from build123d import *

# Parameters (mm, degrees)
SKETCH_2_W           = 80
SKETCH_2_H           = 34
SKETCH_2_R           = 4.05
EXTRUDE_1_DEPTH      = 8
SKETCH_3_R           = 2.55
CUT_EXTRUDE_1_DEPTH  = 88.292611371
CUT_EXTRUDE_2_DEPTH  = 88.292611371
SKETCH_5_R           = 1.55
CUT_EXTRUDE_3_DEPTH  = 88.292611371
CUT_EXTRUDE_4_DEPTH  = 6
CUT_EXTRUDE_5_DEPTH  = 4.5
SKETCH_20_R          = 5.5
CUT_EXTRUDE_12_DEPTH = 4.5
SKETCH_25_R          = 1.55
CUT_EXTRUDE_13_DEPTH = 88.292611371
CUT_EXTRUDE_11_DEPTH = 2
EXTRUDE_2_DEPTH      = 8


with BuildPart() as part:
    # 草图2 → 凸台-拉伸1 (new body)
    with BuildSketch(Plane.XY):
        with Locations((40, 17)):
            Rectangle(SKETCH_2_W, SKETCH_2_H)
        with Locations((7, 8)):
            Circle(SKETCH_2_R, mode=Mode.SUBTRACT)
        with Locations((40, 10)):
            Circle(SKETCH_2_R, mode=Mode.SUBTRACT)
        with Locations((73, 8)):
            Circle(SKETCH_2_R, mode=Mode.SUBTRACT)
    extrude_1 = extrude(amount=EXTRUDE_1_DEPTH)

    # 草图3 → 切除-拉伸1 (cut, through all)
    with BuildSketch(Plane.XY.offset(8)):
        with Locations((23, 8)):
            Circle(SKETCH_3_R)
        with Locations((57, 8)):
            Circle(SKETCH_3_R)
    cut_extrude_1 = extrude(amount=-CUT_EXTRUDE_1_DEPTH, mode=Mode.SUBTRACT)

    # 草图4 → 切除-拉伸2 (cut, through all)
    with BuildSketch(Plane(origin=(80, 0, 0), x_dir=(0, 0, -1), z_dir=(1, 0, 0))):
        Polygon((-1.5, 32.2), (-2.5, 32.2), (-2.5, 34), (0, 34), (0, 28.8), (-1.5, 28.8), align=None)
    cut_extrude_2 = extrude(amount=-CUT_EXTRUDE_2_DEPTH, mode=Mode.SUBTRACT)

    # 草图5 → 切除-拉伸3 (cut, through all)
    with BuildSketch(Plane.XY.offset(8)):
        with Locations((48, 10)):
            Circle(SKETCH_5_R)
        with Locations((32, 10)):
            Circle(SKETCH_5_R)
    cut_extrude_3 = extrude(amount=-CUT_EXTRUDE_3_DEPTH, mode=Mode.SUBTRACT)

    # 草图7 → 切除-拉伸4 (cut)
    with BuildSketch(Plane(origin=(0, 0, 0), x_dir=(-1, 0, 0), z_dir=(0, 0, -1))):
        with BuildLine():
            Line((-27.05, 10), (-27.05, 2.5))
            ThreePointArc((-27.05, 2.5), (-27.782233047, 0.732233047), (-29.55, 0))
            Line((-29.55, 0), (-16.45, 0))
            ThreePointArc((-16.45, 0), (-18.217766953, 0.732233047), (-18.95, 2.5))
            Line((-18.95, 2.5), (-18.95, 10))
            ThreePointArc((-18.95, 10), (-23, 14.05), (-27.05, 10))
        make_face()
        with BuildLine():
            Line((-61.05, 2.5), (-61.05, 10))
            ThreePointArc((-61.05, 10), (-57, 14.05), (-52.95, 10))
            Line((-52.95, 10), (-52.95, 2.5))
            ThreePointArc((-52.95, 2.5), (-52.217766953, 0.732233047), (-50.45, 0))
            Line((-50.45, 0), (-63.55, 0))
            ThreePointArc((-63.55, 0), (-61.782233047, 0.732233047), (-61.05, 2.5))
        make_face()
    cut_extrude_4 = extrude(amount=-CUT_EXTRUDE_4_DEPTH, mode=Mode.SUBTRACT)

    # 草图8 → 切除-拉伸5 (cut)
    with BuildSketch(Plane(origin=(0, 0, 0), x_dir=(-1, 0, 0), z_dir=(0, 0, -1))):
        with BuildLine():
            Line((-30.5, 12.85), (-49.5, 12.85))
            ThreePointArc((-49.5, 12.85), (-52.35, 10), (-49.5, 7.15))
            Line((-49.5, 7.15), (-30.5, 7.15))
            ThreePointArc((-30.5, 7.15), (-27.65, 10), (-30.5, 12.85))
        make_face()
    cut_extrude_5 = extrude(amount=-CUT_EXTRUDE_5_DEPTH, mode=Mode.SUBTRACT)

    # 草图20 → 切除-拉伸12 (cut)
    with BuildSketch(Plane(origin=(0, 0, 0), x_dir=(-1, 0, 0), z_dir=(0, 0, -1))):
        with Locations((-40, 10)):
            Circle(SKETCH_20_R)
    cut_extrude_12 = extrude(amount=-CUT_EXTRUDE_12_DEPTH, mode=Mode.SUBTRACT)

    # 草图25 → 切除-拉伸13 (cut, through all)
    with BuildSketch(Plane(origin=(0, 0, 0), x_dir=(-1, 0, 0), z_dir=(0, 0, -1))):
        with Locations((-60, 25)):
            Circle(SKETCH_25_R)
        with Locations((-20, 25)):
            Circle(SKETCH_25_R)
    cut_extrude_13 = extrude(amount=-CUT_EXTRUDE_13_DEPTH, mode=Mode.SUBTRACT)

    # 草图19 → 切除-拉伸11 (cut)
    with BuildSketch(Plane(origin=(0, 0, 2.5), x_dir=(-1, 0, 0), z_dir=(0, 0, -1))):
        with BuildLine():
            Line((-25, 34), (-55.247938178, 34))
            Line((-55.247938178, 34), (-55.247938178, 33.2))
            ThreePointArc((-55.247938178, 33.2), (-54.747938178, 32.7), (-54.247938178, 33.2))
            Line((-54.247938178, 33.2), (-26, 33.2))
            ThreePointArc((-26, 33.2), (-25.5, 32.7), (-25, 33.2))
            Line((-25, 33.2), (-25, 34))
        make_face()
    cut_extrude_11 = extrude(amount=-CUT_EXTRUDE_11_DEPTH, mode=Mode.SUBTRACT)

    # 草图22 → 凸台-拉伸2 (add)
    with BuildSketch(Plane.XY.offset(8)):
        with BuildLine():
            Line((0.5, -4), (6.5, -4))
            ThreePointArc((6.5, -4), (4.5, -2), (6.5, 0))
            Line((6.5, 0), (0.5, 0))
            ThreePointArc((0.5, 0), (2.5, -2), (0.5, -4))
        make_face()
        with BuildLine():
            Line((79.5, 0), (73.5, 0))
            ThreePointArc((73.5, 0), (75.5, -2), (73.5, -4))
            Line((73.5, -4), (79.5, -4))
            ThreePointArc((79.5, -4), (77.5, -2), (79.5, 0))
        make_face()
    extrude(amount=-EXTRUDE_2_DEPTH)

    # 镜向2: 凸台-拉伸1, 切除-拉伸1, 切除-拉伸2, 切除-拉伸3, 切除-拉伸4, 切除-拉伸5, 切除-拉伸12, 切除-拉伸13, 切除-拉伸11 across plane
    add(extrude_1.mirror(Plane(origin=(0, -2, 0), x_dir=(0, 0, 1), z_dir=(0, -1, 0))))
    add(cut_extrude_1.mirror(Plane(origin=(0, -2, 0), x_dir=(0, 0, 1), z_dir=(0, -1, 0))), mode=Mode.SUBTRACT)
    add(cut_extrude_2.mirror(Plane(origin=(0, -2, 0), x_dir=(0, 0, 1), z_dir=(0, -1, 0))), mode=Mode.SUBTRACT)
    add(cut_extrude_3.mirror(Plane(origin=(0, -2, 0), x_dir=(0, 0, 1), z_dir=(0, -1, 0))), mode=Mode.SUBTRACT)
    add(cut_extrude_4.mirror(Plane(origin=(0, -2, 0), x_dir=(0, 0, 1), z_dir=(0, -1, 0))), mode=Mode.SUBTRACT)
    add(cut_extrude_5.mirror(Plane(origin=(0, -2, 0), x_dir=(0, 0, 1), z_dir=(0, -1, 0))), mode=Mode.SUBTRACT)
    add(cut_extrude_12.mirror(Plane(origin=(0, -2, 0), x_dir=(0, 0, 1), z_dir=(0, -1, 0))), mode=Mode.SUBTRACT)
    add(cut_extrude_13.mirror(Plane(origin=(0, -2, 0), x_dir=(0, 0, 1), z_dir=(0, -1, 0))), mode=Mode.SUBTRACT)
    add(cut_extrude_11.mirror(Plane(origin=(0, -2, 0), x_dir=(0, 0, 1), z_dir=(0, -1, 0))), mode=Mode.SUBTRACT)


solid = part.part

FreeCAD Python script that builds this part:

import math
import FreeCAD as App
import Part
import Sketcher
from FreeCAD import Vector
Q = App.Units.Quantity


def add_polygon(sketch, points):
    """Adds a closed chain of lines whose ends are joined by coincident constraints."""
    first, n = sketch.GeometryCount, len(points)
    for a, b in zip(points, points[1:] + points[:1]):
        sketch.addGeometry(Part.LineSegment(App.Vector(*a, 0), App.Vector(*b, 0)), False)
    for i in range(n):
        sketch.addConstraint(Sketcher.Constraint("Coincident", first + i, 2, first + (i + 1) % n, 1))

doc = App.newDocument("Part")
body = doc.addObject("PartDesign::Body", "Body")

# Sketch on XY plane
sketch1 = body.newObject("Sketcher::SketchObject", "Sketch")
sketch1.AttachmentSupport = (doc.getObject("XY_Plane"), [""])
sketch1.MapMode = "FlatFace"
add_polygon(sketch1, [(0, 34), (0, 0), (80, 0), (80, 34)])  # lines 0-3
sketch1.addGeometry(Part.Circle(Vector(7, 8, 0), Vector(0, 0, 1), 4.05), False)  # 4
sketch1.addGeometry(Part.Circle(Vector(73, 8, 0), Vector(0, 0, 1), 4.05), False)  # 5
sketch1.addGeometry(Part.Circle(Vector(40, 10, 0), Vector(0, 0, 1), 4.05), False)  # 6
sketch1.addConstraint(Sketcher.Constraint("Vertical", 0))
sketch1.addConstraint(Sketcher.Constraint("Horizontal", 1))
sketch1.addConstraint(Sketcher.Constraint("Vertical", 2))
sketch1.addConstraint(Sketcher.Constraint("Horizontal", 3))
sketch1.addConstraint(Sketcher.Constraint("Coincident", 0, 2, -1, 1))
sketch1.addConstraint(Sketcher.Constraint("Equal", 4, 5))
sketch1.addConstraint(Sketcher.Constraint("Equal", 5, 6))
sketch1.addConstraint(Sketcher.Constraint("Horizontal", 4, 3, 5, 3))
sketch1.addConstraint(Sketcher.Constraint("Diameter", 4, Q("8.1 mm")))
sketch1.addConstraint(Sketcher.Constraint("DistanceX", 1, 1, 1, 2, Q("80 mm")))
sketch1.addConstraint(Sketcher.Constraint("DistanceY", 0, 2, 0, 1, Q("34 mm")))
sketch1.addConstraint(Sketcher.Constraint("DistanceX", -1, 1, 4, 3, Q("7 mm")))
sketch1.addConstraint(Sketcher.Constraint("DistanceY", -1, 1, 4, 3, Q("8 mm")))
sketch1.addConstraint(Sketcher.Constraint("DistanceX", -1, 1, 5, 3, Q("73 mm")))
sketch1.addConstraint(Sketcher.Constraint("DistanceX", -1, 1, 6, 3, Q("40 mm")))
sketch1.addConstraint(Sketcher.Constraint("DistanceY", -1, 1, 6, 3, Q("10 mm")))
pad1 = body.newObject("PartDesign::Pad", "Pad")
pad1.Profile = sketch1
pad1.Length = 8

# Sketch on XY plane
sketch2 = body.newObject("Sketcher::SketchObject", "Sketch001")
sketch2.AttachmentSupport = (doc.getObject("XY_Plane"), [""])
sketch2.MapMode = "FlatFace"
sketch2.AttachmentOffset = App.Placement(Vector(0, 0, 8), App.Rotation())
sketch2.addGeometry(Part.Circle(Vector(23, 8, 0), Vector(0, 0, 1), 2.55), False)
sketch2.addGeometry(Part.Circle(Vector(57, 8, 0), Vector(0, 0, 1), 2.55), False)
sketch2.addConstraint(Sketcher.Constraint("Equal", 0, 1))
sketch2.addConstraint(Sketcher.Constraint("Horizontal", 0, 3, 1, 3))
sketch2.addConstraint(Sketcher.Constraint("Diameter", 0, Q("5.1 mm")))
sketch2.addConstraint(Sketcher.Constraint("DistanceX", -1, 1, 0, 3, Q("23 mm")))
sketch2.addConstraint(Sketcher.Constraint("DistanceY", -1, 1, 0, 3, Q("8 mm")))
sketch2.addConstraint(Sketcher.Constraint("DistanceX", -1, 1, 1, 3, Q("57 mm")))
pocket1 = body.newObject("PartDesign::Pocket", "Pocket")
pocket1.Profile = sketch2
pocket1.Type = "ThroughAll"

# Sketch on YZ plane
sketch3 = body.newObject("Sketcher::SketchObject", "Sketch002")
sketch3.AttachmentSupport = (doc.getObject("YZ_Plane"), [""])
sketch3.MapMode = "FlatFace"
sketch3.AttachmentOffset = App.Placement(Vector(0, 0, 80), App.Rotation())
add_polygon(sketch3, [(32.2, 2.5), (32.2, 1.5), (28.8, 1.5), (28.8, 0), (34, 0), (34, 2.5)])  # lines 0-5
sketch3.addConstraint(Sketcher.Constraint("Vertical", 0))
sketch3.addConstraint(Sketcher.Constraint("Horizontal", 1))
sketch3.addConstraint(Sketcher.Constraint("Vertical", 2))
sketch3.addConstraint(Sketcher.Constraint("Horizontal", 3))
sketch3.addConstraint(Sketcher.Constraint("Vertical", 4))
sketch3.addConstraint(Sketcher.Constraint("Horizontal", 5))
sketch3.addConstraint(Sketcher.Constraint("PointOnObject", 2, 2, -1))
sketch3.addConstraint(Sketcher.Constraint("DistanceY", 0, 2, 0, 1, Q("1 mm")))
sketch3.addConstraint(Sketcher.Constraint("DistanceX", 1, 2, 1, 1, Q("3.4 mm")))
sketch3.addConstraint(Sketcher.Constraint("DistanceX", 3, 1, 3, 2, Q("5.2 mm")))
sketch3.addConstraint(Sketcher.Constraint("DistanceY", 2, 2, 2, 1, Q("1.5 mm")))
sketch3.addConstraint(Sketcher.Constraint("DistanceX", -1, 1, 3, 2, Q("34 mm")))
pocket2 = body.newObject("PartDesign::Pocket", "Pocket001")
pocket2.Profile = sketch3
pocket2.Type = "ThroughAll"

# Sketch on XY plane
sketch4 = body.newObject("Sketcher::SketchObject", "Sketch003")
sketch4.AttachmentSupport = (doc.getObject("XY_Plane"), [""])
sketch4.MapMode = "FlatFace"
sketch4.AttachmentOffset = App.Placement(Vector(0, 0, 8), App.Rotation())
sketch4.addGeometry(Part.Circle(Vector(48, 10, 0), Vector(0, 0, 1), 1.55), False)
sketch4.addGeometry(Part.Circle(Vector(32, 10, 0), Vector(0, 0, 1), 1.55), False)
sketch4.addConstraint(Sketcher.Constraint("Equal", 0, 1))
sketch4.addConstraint(Sketcher.Constraint("Horizontal", 0, 3, 1, 3))
sketch4.addConstraint(Sketcher.Constraint("Diameter", 0, Q("3.1 mm")))
sketch4.addConstraint(Sketcher.Constraint("DistanceX", -1, 1, 0, 3, Q("48 mm")))
sketch4.addConstraint(Sketcher.Constraint("DistanceY", -1, 1, 0, 3, Q("10 mm")))
sketch4.addConstraint(Sketcher.Constraint("DistanceX", -1, 1, 1, 3, Q("32 mm")))
pocket3 = body.newObject("PartDesign::Pocket", "Pocket002")
pocket3.Profile = sketch4
pocket3.Type = "ThroughAll"

# Sketch on XY plane
sketch5 = body.newObject("Sketcher::SketchObject", "Sketch004")
sketch5.AttachmentSupport = (doc.getObject("XY_Plane"), [""])
sketch5.MapMode = "FlatFace"
sketch5.addGeometry(Part.LineSegment(Vector(27.05, 10, 0), Vector(27.05, 2.5, 0)), False)
sketch5.addGeometry(Part.ArcOfCircle(Part.Circle(Vector(29.55, 2.5, 0), Vector(0, 0, 1), 2.5), math.radians(180), math.radians(270)), False)
sketch5.addGeometry(Part.LineSegment(Vector(29.55, 0, 0), Vector(16.45, 0, 0)), False)
sketch5.addGeometry(Part.ArcOfCircle(Part.Circle(Vector(16.45, 2.5, 0), Vector(0, 0, 1), 2.5), math.radians(-90), math.radians(0)), False)
sketch5.addGeometry(Part.LineSegment(Vector(18.95, 2.5, 0), Vector(18.95, 10, 0)), False)
sketch5.addGeometry(Part.ArcOfCircle(Part.Circle(Vector(23, 10, 0), Vector(0, 0, 1), 4.05), math.radians(0), math.radians(180)), False)
sketch5.addGeometry(Part.LineSegment(Vector(61.05, 10, 0), Vector(61.05, 2.5, 0)), False)
sketch5.addGeometry(Part.ArcOfCircle(Part.Circle(Vector(63.55, 2.5, 0), Vector(0, 0, 1), 2.5), math.radians(180), math.radians(270)), False)
sketch5.addGeometry(Part.LineSegment(Vector(63.55, 0, 0), Vector(50.45, 0, 0)), False)
sketch5.addGeometry(Part.ArcOfCircle(Part.Circle(Vector(50.45, 2.5, 0), Vector(0, 0, 1), 2.5), math.radians(-90), math.radians(0)), False)
sketch5.addGeometry(Part.LineSegment(Vector(52.95, 2.5, 0), Vector(52.95, 10, 0)), False)
sketch5.addGeometry(Part.ArcOfCircle(Part.Circle(Vector(57, 10, 0), Vector(0, 0, 1), 4.05), math.radians(0), math.radians(180)), False)
sketch5.addConstraint(Sketcher.Constraint("Tangent", 0, 2, 1, 1))
sketch5.addConstraint(Sketcher.Constraint("Tangent", 1, 2, 2, 1))
sketch5.addConstraint(Sketcher.Constraint("Tangent", 2, 2, 3, 1))
sketch5.addConstraint(Sketcher.Constraint("Tangent", 3, 2, 4, 1))
sketch5.addConstraint(Sketcher.Constraint("Tangent", 4, 2, 5, 2))
sketch5.addConstraint(Sketcher.Constraint("Tangent", 5, 1, 0, 1))
sketch5.addConstraint(Sketcher.Constraint("Tangent", 6, 2, 7, 1))
sketch5.addConstraint(Sketcher.Constraint("Tangent", 7, 2, 8, 1))
sketch5.addConstraint(Sketcher.Constraint("Tangent", 8, 2, 9, 1))
sketch5.addConstraint(Sketcher.Constraint("Tangent", 9, 2, 10, 1))
sketch5.addConstraint(Sketcher.Constraint("Tangent", 10, 2, 11, 2))
sketch5.addConstraint(Sketcher.Constraint("Tangent", 11, 1, 6, 1))
sketch5.addConstraint(Sketcher.Constraint("Vertical", 0))
sketch5.addConstraint(Sketcher.Constraint("Horizontal", 2))
sketch5.addConstraint(Sketcher.Constraint("Vertical", 4))
sketch5.addConstraint(Sketcher.Constraint("Vertical", 6))
sketch5.addConstraint(Sketcher.Constraint("Horizontal", 8))
sketch5.addConstraint(Sketcher.Constraint("Vertical", 10))
sketch5.addConstraint(Sketcher.Constraint("Equal", 1, 3))
sketch5.addConstraint(Sketcher.Constraint("Equal", 3, 7))
sketch5.addConstraint(Sketcher.Constraint("Equal", 7, 9))
sketch5.addConstraint(Sketcher.Constraint("Equal", 5, 11))
sketch5.addConstraint(Sketcher.Constraint("PointOnObject", 1, 2, -1))
sketch5.addConstraint(Sketcher.Constraint("PointOnObject", 7, 2, -1))
sketch5.addConstraint(Sketcher.Constraint("Horizontal", 5, 3, 11, 3))
sketch5.addConstraint(Sketcher.Constraint("Radius", 1, Q("2.5 mm")))
sketch5.addConstraint(Sketcher.Constraint("Radius", 5, Q("4.05 mm")))
sketch5.addConstraint(Sketcher.Constraint("DistanceY", 0, 2, 0, 1, Q("7.5 mm")))
sketch5.addConstraint(Sketcher.Constraint("DistanceX", -1, 1, 5, 3, Q("23 mm")))
sketch5.addConstraint(Sketcher.Constraint("DistanceX", -1, 1, 11, 3, Q("57 mm")))
pocket4 = body.newObject("PartDesign::Pocket", "Pocket003")
pocket4.Profile = sketch5
pocket4.Length = 6
pocket4.Reversed = True

# Sketch on XY plane
sketch6 = body.newObject("Sketcher::SketchObject", "Sketch005")
sketch6.AttachmentSupport = (doc.getObject("XY_Plane"), [""])
sketch6.MapMode = "FlatFace"
sketch6.addGeometry(Part.LineSegment(Vector(30.5, 12.85, 0), Vector(49.5, 12.85, 0)), False)
sketch6.addGeometry(Part.ArcOfCircle(Part.Circle(Vector(49.5, 10, 0), Vector(0, 0, 1), 2.85), math.radians(-90), math.radians(90)), False)
sketch6.addGeometry(Part.LineSegment(Vector(49.5, 7.15, 0), Vector(30.5, 7.15, 0)), False)
sketch6.addGeometry(Part.ArcOfCircle(Part.Circle(Vector(30.5, 10, 0), Vector(0, 0, 1), 2.85), math.radians(90), math.radians(270)), False)
sketch6.addConstraint(Sketcher.Constraint("Tangent", 0, 2, 1, 2))
sketch6.addConstraint(Sketcher.Constraint("Tangent", 1, 1, 2, 1))
sketch6.addConstraint(Sketcher.Constraint("Tangent", 2, 2, 3, 2))
sketch6.addConstraint(Sketcher.Constraint("Tangent", 3, 1, 0, 1))
sketch6.addConstraint(Sketcher.Constraint("Horizontal", 0))
sketch6.addConstraint(Sketcher.Constraint("Horizontal", 2))
sketch6.addConstraint(Sketcher.Constraint("DistanceX", 0, 1, 0, 2, Q("19 mm")))
sketch6.addConstraint(Sketcher.Constraint("Radius", 1, Q("2.85 mm")))
sketch6.addConstraint(Sketcher.Constraint("DistanceY", -1, 1, 1, 3, Q("10 mm")))
sketch6.addConstraint(Sketcher.Constraint("DistanceX", -1, 1, 1, 3, Q("49.5 mm")))
pocket5 = body.newObject("PartDesign::Pocket", "Pocket004")
pocket5.Profile = sketch6
pocket5.Length = 4.5
pocket5.Reversed = True

# Sketch on XY plane
sketch7 = body.newObject("Sketcher::SketchObject", "Sketch006")
sketch7.AttachmentSupport = (doc.getObject("XY_Plane"), [""])
sketch7.MapMode = "FlatFace"
sketch7.addGeometry(Part.Circle(Vector(40, 10, 0), Vector(0, 0, 1), 5.5), False)
sketch7.addConstraint(Sketcher.Constraint("Diameter", 0, Q("11 mm")))
sketch7.addConstraint(Sketcher.Constraint("DistanceX", -1, 1, 0, 3, Q("40 mm")))
sketch7.addConstraint(Sketcher.Constraint("DistanceY", -1, 1, 0, 3, Q("10 mm")))
pocket6 = body.newObject("PartDesign::Pocket", "Pocket005")
pocket6.Profile = sketch7
pocket6.Length = 4.5
pocket6.Reversed = True

# Sketch on XY plane
sketch8 = body.newObject("Sketcher::SketchObject", "Sketch007")
sketch8.AttachmentSupport = (doc.getObject("XY_Plane"), [""])
sketch8.MapMode = "FlatFace"
sketch8.addGeometry(Part.Circle(Vector(60, 25, 0), Vector(0, 0, 1), 1.55), False)
sketch8.addGeometry(Part.Circle(Vector(20, 25, 0), Vector(0, 0, 1), 1.55), False)
sketch8.addConstraint(Sketcher.Constraint("Equal", 0, 1))
sketch8.addConstraint(Sketcher.Constraint("Horizontal", 0, 3, 1, 3))
sketch8.addConstraint(Sketcher.Constraint("Diameter", 0, Q("3.1 mm")))
sketch8.addConstraint(Sketcher.Constraint("DistanceX", -1, 1, 0, 3, Q("60 mm")))
sketch8.addConstraint(Sketcher.Constraint("DistanceY", -1, 1, 0, 3, Q("25 mm")))
sketch8.addConstraint(Sketcher.Constraint("DistanceX", -1, 1, 1, 3, Q("20 mm")))
pocket7 = body.newObject("PartDesign::Pocket", "Pocket006")
pocket7.Profile = sketch8
pocket7.Type = "ThroughAll"
pocket7.Reversed = True

# Sketch on XY plane
sketch9 = body.newObject("Sketcher::SketchObject", "Sketch008")
sketch9.AttachmentSupport = (doc.getObject("XY_Plane"), [""])
sketch9.MapMode = "FlatFace"
sketch9.AttachmentOffset = App.Placement(Vector(0, 0, 2.5), App.Rotation())
sketch9.addGeometry(Part.LineSegment(Vector(25, 34, 0), Vector(55.247938, 34, 0)), False)
sketch9.addGeometry(Part.LineSegment(Vector(55.247938, 34, 0), Vector(55.247938, 33.2, 0)), False)
sketch9.addGeometry(Part.ArcOfCircle(Part.Circle(Vector(54.747938, 33.2, 0), Vector(0, 0, 1), 0.5), math.radians(180), math.radians(360)), False)
sketch9.addGeometry(Part.LineSegment(Vector(54.247938, 33.2, 0), Vector(26, 33.2, 0)), False)
sketch9.addGeometry(Part.ArcOfCircle(Part.Circle(Vector(25.5, 33.2, 0), Vector(0, 0, 1), 0.5), math.radians(180), math.radians(360)), False)
sketch9.addGeometry(Part.LineSegment(Vector(25, 33.2, 0), Vector(25, 34, 0)), False)
sketch9.addConstraint(Sketcher.Constraint("Coincident", 0, 2, 1, 1))
sketch9.addConstraint(Sketcher.Constraint("Tangent", 1, 2, 2, 2))
sketch9.addConstraint(Sketcher.Constraint("Coincident", 2, 1, 3, 1))
sketch9.addConstraint(Sketcher.Constraint("Coincident", 3, 2, 4, 2))
sketch9.addConstraint(Sketcher.Constraint("Tangent", 4, 1, 5, 1))
sketch9.addConstraint(Sketcher.Constraint("Coincident", 5, 2, 0, 1))
sketch9.addConstraint(Sketcher.Constraint("Horizontal", 0))
sketch9.addConstraint(Sketcher.Constraint("Vertical", 1))
sketch9.addConstraint(Sketcher.Constraint("Horizontal", 3))
sketch9.addConstraint(Sketcher.Constraint("Vertical", 5))
sketch9.addConstraint(Sketcher.Constraint("Equal", 2, 4))
sketch9.addConstraint(Sketcher.Constraint("Horizontal", 2, 3, 4, 3))
sketch9.addConstraint(Sketcher.Constraint("Horizontal", 1, 2, 2, 1))
sketch9.addConstraint(Sketcher.Constraint("Radius", 2, Q("0.5 mm")))
sketch9.addConstraint(Sketcher.Constraint("DistanceY", 1, 2, 1, 1, Q("0.8 mm")))
sketch9.addConstraint(Sketcher.Constraint("DistanceY", -1, 1, 0, 2, Q("34 mm")))
sketch9.addConstraint(Sketcher.Constraint("DistanceX", -1, 1, 3, 2, Q("26 mm")))
sketch9.addConstraint(Sketcher.Constraint("DistanceX", 0, 1, 0, 2, Q("30.247938 mm")))
pocket8 = body.newObject("PartDesign::Pocket", "Pocket007")
pocket8.Profile = sketch9
pocket8.Length = 2
pocket8.Reversed = True

# Sketch on XY plane
sketch10 = body.newObject("Sketcher::SketchObject", "Sketch009")
sketch10.AttachmentSupport = (doc.getObject("XY_Plane"), [""])
sketch10.MapMode = "FlatFace"
sketch10.AttachmentOffset = App.Placement(Vector(0, 0, 8), App.Rotation())
sketch10.addGeometry(Part.LineSegment(Vector(0.5, -4, 0), Vector(6.5, -4, 0)), False)
sketch10.addGeometry(Part.ArcOfCircle(Part.Circle(Vector(6.5, -2, 0), Vector(0, 0, 1), 2), math.radians(90), math.radians(270)), False)
sketch10.addGeometry(Part.LineSegment(Vector(6.5, 0, 0), Vector(0.5, 0, 0)), False)
sketch10.addGeometry(Part.ArcOfCircle(Part.Circle(Vector(0.5, -2, 0), Vector(0, 0, 1), 2), math.radians(-90), math.radians(90)), False)
sketch10.addGeometry(Part.LineSegment(Vector(79.5, 0, 0), Vector(73.5, 0, 0)), False)
sketch10.addGeometry(Part.ArcOfCircle(Part.Circle(Vector(73.5, -2, 0), Vector(0, 0, 1), 2), math.radians(-90), math.radians(90)), False)
sketch10.addGeometry(Part.LineSegment(Vector(73.5, -4, 0), Vector(79.5, -4, 0)), False)
sketch10.addGeometry(Part.ArcOfCircle(Part.Circle(Vector(79.5, -2, 0), Vector(0, 0, 1), 2), math.radians(90), math.radians(270)), False)
sketch10.addConstraint(Sketcher.Constraint("Tangent", 0, 2, 1, 2))
sketch10.addConstraint(Sketcher.Constraint("Tangent", 1, 1, 2, 1))
sketch10.addConstraint(Sketcher.Constraint("Tangent", 2, 2, 3, 2))
sketch10.addConstraint(Sketcher.Constraint("Tangent", 3, 1, 0, 1))
sketch10.addConstraint(Sketcher.Constraint("Tangent", 4, 2, 5, 2))
sketch10.addConstraint(Sketcher.Constraint("Tangent", 5, 1, 6, 1))
sketch10.addConstraint(Sketcher.Constraint("Tangent", 6, 2, 7, 2))
sketch10.addConstraint(Sketcher.Constraint("Tangent", 7, 1, 4, 1))
sketch10.addConstraint(Sketcher.Constraint("Horizontal", 0))
sketch10.addConstraint(Sketcher.Constraint("Horizontal", 2))
sketch10.addConstraint(Sketcher.Constraint("Horizontal", 4))
sketch10.addConstraint(Sketcher.Constraint("Horizontal", 6))
sketch10.addConstraint(Sketcher.Constraint("Equal", 3, 5))
sketch10.addConstraint(Sketcher.Constraint("PointOnObject", 1, 1, -1))
sketch10.addConstraint(Sketcher.Constraint("PointOnObject", 4, 2, -1))
sketch10.addConstraint(Sketcher.Constraint("Equal", 2, 4))
sketch10.addConstraint(Sketcher.Constraint("Radius", 1, Q("2 mm")))
sketch10.addConstraint(Sketcher.Constraint("DistanceX", 0, 1, 0, 2, Q("6 mm")))
sketch10.addConstraint(Sketcher.Constraint("DistanceX", 1, 3, 5, 3, Q("67 mm")))
sketch10.addConstraint(Sketcher.Constraint("DistanceX", -1, 1, 1, 3, Q("6.5 mm")))
pad2 = body.newObject("PartDesign::Pad", "Pad001")
pad2.Profile = sketch10
pad2.Length = 8
pad2.Reversed = True
doc.recompute()

datumplane = body.newObject("PartDesign::Plane", "DatumPlane")
datumplane.AttachmentSupport = (doc.getObject("XZ_Plane"), [""])
datumplane.MapMode = "FlatFace"
datumplane.AttachmentOffset = App.Placement(Vector(0, 0, 2), App.Rotation())
mirrored = body.newObject("PartDesign::Mirrored", "Mirrored")
mirrored.Originals = [pad1, pocket1, pocket2, pocket3, pocket4, pocket5, pocket6, pocket7, pocket8]
mirrored.MirrorPlane = (datumplane, [""])
body.Tip = mirrored

doc.recompute()
